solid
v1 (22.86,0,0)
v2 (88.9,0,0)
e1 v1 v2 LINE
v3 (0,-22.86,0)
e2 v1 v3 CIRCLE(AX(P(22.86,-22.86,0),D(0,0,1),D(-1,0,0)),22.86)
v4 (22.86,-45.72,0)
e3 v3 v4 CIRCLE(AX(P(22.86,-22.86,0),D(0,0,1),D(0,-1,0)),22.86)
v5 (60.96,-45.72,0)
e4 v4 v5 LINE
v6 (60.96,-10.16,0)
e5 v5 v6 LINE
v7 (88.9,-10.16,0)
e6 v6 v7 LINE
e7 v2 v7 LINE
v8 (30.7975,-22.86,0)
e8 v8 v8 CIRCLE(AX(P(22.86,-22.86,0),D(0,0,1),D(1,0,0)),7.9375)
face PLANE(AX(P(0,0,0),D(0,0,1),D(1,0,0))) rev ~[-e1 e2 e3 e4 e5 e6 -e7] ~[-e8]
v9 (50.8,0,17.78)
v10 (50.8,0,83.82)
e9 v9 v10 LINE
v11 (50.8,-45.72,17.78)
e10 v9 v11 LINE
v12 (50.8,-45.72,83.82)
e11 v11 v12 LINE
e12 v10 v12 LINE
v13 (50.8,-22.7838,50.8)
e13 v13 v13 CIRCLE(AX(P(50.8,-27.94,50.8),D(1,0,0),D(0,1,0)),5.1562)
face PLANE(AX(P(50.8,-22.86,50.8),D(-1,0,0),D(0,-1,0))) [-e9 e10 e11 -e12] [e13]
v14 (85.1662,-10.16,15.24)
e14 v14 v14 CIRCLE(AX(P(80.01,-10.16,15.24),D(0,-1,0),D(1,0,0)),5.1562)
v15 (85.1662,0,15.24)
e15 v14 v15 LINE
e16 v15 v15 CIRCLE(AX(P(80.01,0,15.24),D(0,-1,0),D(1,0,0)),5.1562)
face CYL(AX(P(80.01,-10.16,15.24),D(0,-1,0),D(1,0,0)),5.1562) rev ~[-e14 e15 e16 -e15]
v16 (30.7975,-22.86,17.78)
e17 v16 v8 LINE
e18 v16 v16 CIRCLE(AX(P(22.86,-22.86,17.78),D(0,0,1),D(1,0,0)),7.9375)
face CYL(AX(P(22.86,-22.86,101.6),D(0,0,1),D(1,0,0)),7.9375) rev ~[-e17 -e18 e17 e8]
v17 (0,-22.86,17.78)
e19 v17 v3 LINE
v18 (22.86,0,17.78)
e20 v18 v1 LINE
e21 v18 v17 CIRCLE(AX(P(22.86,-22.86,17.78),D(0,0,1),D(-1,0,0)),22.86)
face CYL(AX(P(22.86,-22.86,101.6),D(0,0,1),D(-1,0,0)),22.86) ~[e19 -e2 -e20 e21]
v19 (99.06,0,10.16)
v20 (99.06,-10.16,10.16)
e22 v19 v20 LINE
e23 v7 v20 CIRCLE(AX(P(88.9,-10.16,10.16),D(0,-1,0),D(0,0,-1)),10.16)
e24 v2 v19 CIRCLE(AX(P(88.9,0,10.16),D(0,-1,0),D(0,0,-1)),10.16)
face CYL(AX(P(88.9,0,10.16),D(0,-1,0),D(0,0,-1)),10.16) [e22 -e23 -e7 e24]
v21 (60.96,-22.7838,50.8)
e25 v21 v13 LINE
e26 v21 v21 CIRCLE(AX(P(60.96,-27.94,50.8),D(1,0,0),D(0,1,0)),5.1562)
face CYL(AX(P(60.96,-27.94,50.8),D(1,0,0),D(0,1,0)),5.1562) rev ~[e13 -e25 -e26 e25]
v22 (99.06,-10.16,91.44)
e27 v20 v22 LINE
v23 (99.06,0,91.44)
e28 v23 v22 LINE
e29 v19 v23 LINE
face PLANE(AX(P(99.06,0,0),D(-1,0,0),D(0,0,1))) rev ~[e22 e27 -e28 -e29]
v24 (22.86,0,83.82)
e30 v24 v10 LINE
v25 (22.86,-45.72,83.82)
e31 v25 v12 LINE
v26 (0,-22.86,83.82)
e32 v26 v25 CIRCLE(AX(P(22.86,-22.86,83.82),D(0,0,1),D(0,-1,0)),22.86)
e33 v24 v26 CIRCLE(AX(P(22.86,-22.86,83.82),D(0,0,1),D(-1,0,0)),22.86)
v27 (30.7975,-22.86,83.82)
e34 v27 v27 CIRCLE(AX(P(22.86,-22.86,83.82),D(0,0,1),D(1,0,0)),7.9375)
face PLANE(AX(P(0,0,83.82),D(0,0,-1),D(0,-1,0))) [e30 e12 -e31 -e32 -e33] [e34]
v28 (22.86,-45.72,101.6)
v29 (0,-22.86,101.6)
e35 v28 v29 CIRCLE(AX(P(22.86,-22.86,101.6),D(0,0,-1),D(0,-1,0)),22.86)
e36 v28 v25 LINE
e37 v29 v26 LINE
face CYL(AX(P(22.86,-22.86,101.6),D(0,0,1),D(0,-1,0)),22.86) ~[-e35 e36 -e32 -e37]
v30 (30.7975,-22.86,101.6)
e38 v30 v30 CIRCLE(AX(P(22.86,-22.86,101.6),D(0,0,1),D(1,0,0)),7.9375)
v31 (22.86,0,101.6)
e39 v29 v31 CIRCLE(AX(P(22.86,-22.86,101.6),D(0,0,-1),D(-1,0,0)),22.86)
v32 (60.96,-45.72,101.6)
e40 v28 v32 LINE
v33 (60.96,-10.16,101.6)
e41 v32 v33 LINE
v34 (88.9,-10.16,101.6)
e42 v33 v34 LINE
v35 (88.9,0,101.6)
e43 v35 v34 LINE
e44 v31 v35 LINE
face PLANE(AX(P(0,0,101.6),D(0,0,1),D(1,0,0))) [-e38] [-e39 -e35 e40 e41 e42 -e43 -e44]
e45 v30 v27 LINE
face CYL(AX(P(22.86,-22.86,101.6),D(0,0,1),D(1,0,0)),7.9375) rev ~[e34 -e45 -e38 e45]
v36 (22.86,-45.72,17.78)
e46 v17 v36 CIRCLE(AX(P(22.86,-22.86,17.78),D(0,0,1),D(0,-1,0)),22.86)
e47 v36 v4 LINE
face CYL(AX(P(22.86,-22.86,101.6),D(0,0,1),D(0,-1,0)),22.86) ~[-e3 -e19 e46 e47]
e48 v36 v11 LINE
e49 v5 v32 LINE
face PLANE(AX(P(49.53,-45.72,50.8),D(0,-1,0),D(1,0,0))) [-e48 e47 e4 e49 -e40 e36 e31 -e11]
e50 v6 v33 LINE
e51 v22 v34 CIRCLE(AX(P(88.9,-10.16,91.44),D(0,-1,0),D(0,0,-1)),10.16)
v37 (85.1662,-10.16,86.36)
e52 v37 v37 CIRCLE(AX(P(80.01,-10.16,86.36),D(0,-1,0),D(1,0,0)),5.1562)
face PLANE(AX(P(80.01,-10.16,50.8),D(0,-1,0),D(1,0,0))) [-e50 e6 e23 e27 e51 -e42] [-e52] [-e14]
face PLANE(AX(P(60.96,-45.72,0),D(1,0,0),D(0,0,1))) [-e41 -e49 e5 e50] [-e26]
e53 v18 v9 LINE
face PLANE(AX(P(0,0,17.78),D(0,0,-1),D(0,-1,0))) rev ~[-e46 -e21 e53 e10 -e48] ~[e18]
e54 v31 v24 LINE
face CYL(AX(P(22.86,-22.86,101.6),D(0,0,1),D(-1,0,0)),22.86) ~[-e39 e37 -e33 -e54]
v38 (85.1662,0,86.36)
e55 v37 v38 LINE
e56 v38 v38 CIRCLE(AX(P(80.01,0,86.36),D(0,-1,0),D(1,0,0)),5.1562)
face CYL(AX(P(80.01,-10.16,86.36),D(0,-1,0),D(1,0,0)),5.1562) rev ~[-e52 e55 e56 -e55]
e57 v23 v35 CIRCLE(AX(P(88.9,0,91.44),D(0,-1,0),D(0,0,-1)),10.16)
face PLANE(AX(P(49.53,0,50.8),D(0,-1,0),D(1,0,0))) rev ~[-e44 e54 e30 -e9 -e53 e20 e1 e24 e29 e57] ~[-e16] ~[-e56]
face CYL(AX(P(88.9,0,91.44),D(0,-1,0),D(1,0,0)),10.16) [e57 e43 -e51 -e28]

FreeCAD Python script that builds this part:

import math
import FreeCAD as App
import Part
import Sketcher
Q = App.Units.Quantity


def edges_at(feature, points):
    """Names of the edges that pass closest to the given points."""
    edges = feature.Shape.Edges
    near = lambda p: min(range(len(edges)), key=lambda i: edges[i].distToShape(Part.Vertex(*p))[0])
    return sorted({f"Edge{near(p) + 1}" for p in points})


def add_polygon(sketch, points):
    """Adds a closed chain of lines whose ends are joined by coincident constraints."""
    first, n = sketch.GeometryCount, len(points)
    for a, b in zip(points, points[1:] + points[:1]):
        sketch.addGeometry(Part.LineSegment(App.Vector(*a, 0), App.Vector(*b, 0)), False)
    for i in range(n):
        sketch.addConstraint(Sketcher.Constraint("Coincident", first + i, 2, first + (i + 1) % n, 1))

doc = App.newDocument("Part")
params = doc.addObject("Spreadsheet::Sheet", "Params")
for row, (alias, value) in enumerate([
    ("sketch1_height", "4 in"),
    ("sketch1_width", "3.9 in"),
    ("pad1_length", "1.8 in"),
    ("sketch2_height", "4 in"),
    ("sketch2_width", "1.5 in"),
    ("pocket1_length", "1.4 in"),
    ("sketch3_width", "1.8 in"),
    ("sketch3_height", "2.6 in"),
    ("pocket2_length", "2 in"),
    ("sketch4_radius", "0.9 in"),
    ("sketch4_diameter", "0.625 in"),
    ("sketch5_diameter", "0.406 in"),
    ("sketch6_diameter", "0.406 in"),
    ("fillet_radius", "0.4 in"),
], start=1):
    params.set(f"A{row}", alias)
    params.set(f"B{row}", "=" + value)
    params.setAlias(f"B{row}", alias)

body = doc.addObject("PartDesign::Body", "Body")

# Sketch on XZ plane
sketch1 = body.newObject("Sketcher::SketchObject", "Sketch")
sketch1.AttachmentSupport = (doc.getObject("XZ_Plane"), [""])
sketch1.MapMode = "FlatFace"
add_polygon(sketch1, [(0, 101.6), (0, 0), (99.06, 0), (99.06, 101.6)])  # lines 0-3
sketch1.addConstraint(Sketcher.Constraint("Vertical", 0))
sketch1.addConstraint(Sketcher.Constraint("Horizontal", 1))
sketch1.addConstraint(Sketcher.Constraint("Vertical", 2))
sketch1.addConstraint(Sketcher.Constraint("Horizontal", 3))
sketch1.addConstraint(Sketcher.Constraint("Coincident", 0, 2, -1, 1))
sketch1.addConstraint(Sketcher.Constraint("DistanceY", 0, 2, 0, 1, Q("4 in")))
sketch1.addConstraint(Sketcher.Constraint("DistanceX", 1, 1, 1, 2, Q("3.9 in")))
sketch1.setExpression("Constraints[9]", "Params.sketch1_height")
sketch1.setExpression("Constraints[10]", "Params.sketch1_width")
pad1 = body.newObject("PartDesign::Pad", "Pad")
pad1.Profile = sketch1
pad1.setExpression("Length", "Params.pad1_length")

# Sketch on XZ plane
sketch2 = body.newObject("Sketcher::SketchObject", "Sketch001")
sketch2.AttachmentSupport = (doc.getObject("XZ_Plane"), [""])
sketch2.MapMode = "FlatFace"
sketch2.AttachmentOffset = App.Placement(App.Vector(0, 0, 1.8 * 25.4), App.Rotation())
add_polygon(sketch2, [(60.96, 101.6), (60.96, 0), (99.06, 0), (99.06, 101.6)])  # lines 0-3
sketch2.addConstraint(Sketcher.Constraint("Vertical", 0))
sketch2.addConstraint(Sketcher.Constraint("Horizontal", 1))
sketch2.addConstraint(Sketcher.Constraint("Vertical", 2))
sketch2.addConstraint(Sketcher.Constraint("Horizontal", 3))
sketch2.addConstraint(Sketcher.Constraint("PointOnObject", 0, 2, -1))
sketch2.addConstraint(Sketcher.Constraint("DistanceY", 0, 2, 0, 1, Q("4 in")))
sketch2.addConstraint(Sketcher.Constraint("DistanceX", 1, 1, 1, 2, Q("1.5 in")))
sketch2.addConstraint(Sketcher.Constraint("DistanceX", -1, 1, 0, 2, Q("2.4 in")))
sketch2.setExpression("Constraints[9]", "Params.sketch2_height")
sketch2.setExpression("Constraints[10]", "Params.sketch2_width")
pocket1 = body.newObject("PartDesign::Pocket", "Pocket")
pocket1.Profile = sketch2
pocket1.setExpression("Length", "Params.pocket1_length")

# Sketch on YZ plane
sketch3 = body.newObject("Sketcher::SketchObject", "Sketch002")
sketch3.AttachmentSupport = (doc.getObject("YZ_Plane"), [""])
sketch3.MapMode = "FlatFace"
add_polygon(sketch3, [(0, 83.82), (0, 17.78), (-45.72, 17.78), (-45.72, 83.82)])  # lines 0-3
sketch3.addConstraint(Sketcher.Constraint("Vertical", 0))
sketch3.addConstraint(Sketcher.Constraint("Horizontal", 1))
sketch3.addConstraint(Sketcher.Constraint("Vertical", 2))
sketch3.addConstraint(Sketcher.Constraint("Horizontal", 3))
sketch3.addConstraint(Sketcher.Constraint("PointOnObject", 0, 2, -2))
sketch3.addConstraint(Sketcher.Constraint("DistanceX", 1, 2, 1, 1, Q("1.8 in")))
sketch3.addConstraint(Sketcher.Constraint("DistanceY", 0, 2, 0, 1, Q("2.6 in")))
sketch3.addConstraint(Sketcher.Constraint("DistanceY", -1, 1, 0, 2, Q("0.7 in")))
sketch3.setExpression("Constraints[9]", "Params.sketch3_width")
sketch3.setExpression("Constraints[10]", "Params.sketch3_height")
pocket2 = body.newObject("PartDesign::Pocket", "Pocket001")
pocket2.Profile = sketch3
pocket2.setExpression("Length", "Params.pocket2_length")
pocket2.Reversed = True

# Sketch on XY plane
sketch4 = body.newObject("Sketcher::SketchObject", "Sketch003")
sketch4.AttachmentSupport = (doc.getObject("XY_Plane"), [""])
sketch4.MapMode = "FlatFace"
sketch4.AttachmentOffset = App.Placement(App.Vector(0, 0, 4 * 25.4), App.Rotation())
sketch4.addGeometry(Part.Circle(App.Vector(22.86, -22.86, 0), App.Vector(0, 0, 1), 7.9375), False)
sketch4.addGeometry(Part.ArcOfCircle(Part.Circle(App.Vector(22.86, -22.86, 0), App.Vector(0, 0, 1), 22.86), math.radians(90), math.radians(180)), False)
sketch4.addGeometry(Part.LineSegment(App.Vector(22.86, 0, 0), App.Vector(0, 0, 0)), False)
sketch4.addGeometry(Part.LineSegment(App.Vector(0, 0, 0), App.Vector(0, -22.86, 0)), False)
sketch4.addGeometry(Part.LineSegment(App.Vector(0, -45.72, 0), App.Vector(22.86, -45.72, 0)), False)
sketch4.addGeometry(Part.ArcOfCircle(Part.Circle(App.Vector(22.86, -22.86, 0), App.Vector(0, 0, 1), 22.86), math.radians(180), math.radians(270)), False)
sketch4.addGeometry(Part.LineSegment(App.Vector(0, -22.86, 0), App.Vector(0, -45.72, 0)), False)
sketch4.addConstraint(Sketcher.Constraint("Tangent", 1, 1, 2, 1))
sketch4.addConstraint(Sketcher.Constraint("Coincident", 2, 2, 3, 1))
sketch4.addConstraint(Sketcher.Constraint("Tangent", 3, 2, 1, 2))
sketch4.addConstraint(Sketcher.Constraint("Tangent", 4, 2, 5, 2))
sketch4.addConstraint(Sketcher.Constraint("Tangent", 5, 1, 6, 1))
sketch4.addConstraint(Sketcher.Constraint("Coincident", 6, 2, 4, 1))
sketch4.addConstraint(Sketcher.Constraint("Horizontal", 2))
sketch4.addConstraint(Sketcher.Constraint("Vertical", 3))
sketch4.addConstraint(Sketcher.Constraint("Horizontal", 4))
sketch4.addConstraint(Sketcher.Constraint("Vertical", 6))
sketch4.addConstraint(Sketcher.Constraint("Coincident", 2, 2, -1, 1))
sketch4.addConstraint(Sketcher.Constraint("Coincident", 1, 3, 0, 3))
sketch4.addConstraint(Sketcher.Constraint("Coincident", 5, 3, 0, 3))
sketch4.addConstraint(Sketcher.Constraint("Equal", 1, 5))
sketch4.addConstraint(Sketcher.Constraint("Radius", 1, Q("0.9 in")))
sketch4.addConstraint(Sketcher.Constraint("Diameter", 0, Q("0.625 in")))
sketch4.setExpression("Constraints[14]", "Params.sketch4_radius")
sketch4.setExpression("Constraints[15]", "Params.sketch4_diameter")
pocket3 = body.newObject("PartDesign::Pocket", "Pocket002")
pocket3.Profile = sketch4
pocket3.Type = "ThroughAll"

# Sketch on YZ plane
sketch5 = body.newObject("Sketcher::SketchObject", "Sketch004")
sketch5.AttachmentSupport = (doc.getObject("YZ_Plane"), [""])
sketch5.MapMode = "FlatFace"
sketch5.AttachmentOffset = App.Placement(App.Vector(0, 0, 2.4 * 25.4), App.Rotation())
sketch5.addGeometry(Part.Circle(App.Vector(-27.94, 50.8, 0), App.Vector(0, 0, 1), 5.1562), False)
sketch5.addConstraint(Sketcher.Constraint("Diameter", 0, Q("0.406 in")))
sketch5.addConstraint(Sketcher.Constraint("DistanceY", -1, 1, 0, 3, Q("2 in")))
sketch5.addConstraint(Sketcher.Constraint("DistanceX", 0, 3, -1, 1, Q("1.1 in")))
sketch5.setExpression("Constraints[0]", "Params.sketch5_diameter")
pocket4 = body.newObject("PartDesign::Pocket", "Pocket003")
pocket4.Profile = sketch5
pocket4.Type = "ThroughAll"

# Sketch on XZ plane
sketch6 = body.newObject("Sketcher::SketchObject", "Sketch005")
sketch6.AttachmentSupport = (doc.getObject("XZ_Plane"), [""])
sketch6.MapMode = "FlatFace"
sketch6.AttachmentOffset = App.Placement(App.Vector(0, 0, 0.4 * 25.4), App.Rotation())
sketch6.addGeometry(Part.Circle(App.Vector(80.01, 86.36, 0), App.Vector(0, 0, 1), 5.1562), False)
sketch6.addGeometry(Part.Circle(App.Vector(80.01, 15.24, 0), App.Vector(0, 0, 1), 5.1562), False)
sketch6.addConstraint(Sketcher.Constraint("Equal", 0, 1))
sketch6.addConstraint(Sketcher.Constraint("Vertical", 0, 3, 1, 3))
sketch6.addConstraint(Sketcher.Constraint("Diameter", 0, Q("0.406 in")))
sketch6.addConstraint(Sketcher.Constraint("DistanceY", -1, 1, 0, 3, Q("3.4 in")))
sketch6.addConstraint(Sketcher.Constraint("DistanceY", -1, 1, 1, 3, Q("0.6 in")))
sketch6.addConstraint(Sketcher.Constraint("DistanceX", -1, 1, 0, 3, Q("3.15 in")))
sketch6.setExpression("Constraints[2]", "Params.sketch6_diameter")
pocket5 = body.newObject("PartDesign::Pocket", "Pocket004")
pocket5.Profile = sketch6
pocket5.Type = "ThroughAll"
doc.recompute()

fillet = body.newObject("PartDesign::Fillet", "Fillet")
fillet.Base = (pocket5, edges_at(pocket5, [(99.06, -5.08, 101.6), (99.06, -5.08, 0)]))
fillet.setExpression("Radius", "Params.fillet_radius")

doc.recompute()
